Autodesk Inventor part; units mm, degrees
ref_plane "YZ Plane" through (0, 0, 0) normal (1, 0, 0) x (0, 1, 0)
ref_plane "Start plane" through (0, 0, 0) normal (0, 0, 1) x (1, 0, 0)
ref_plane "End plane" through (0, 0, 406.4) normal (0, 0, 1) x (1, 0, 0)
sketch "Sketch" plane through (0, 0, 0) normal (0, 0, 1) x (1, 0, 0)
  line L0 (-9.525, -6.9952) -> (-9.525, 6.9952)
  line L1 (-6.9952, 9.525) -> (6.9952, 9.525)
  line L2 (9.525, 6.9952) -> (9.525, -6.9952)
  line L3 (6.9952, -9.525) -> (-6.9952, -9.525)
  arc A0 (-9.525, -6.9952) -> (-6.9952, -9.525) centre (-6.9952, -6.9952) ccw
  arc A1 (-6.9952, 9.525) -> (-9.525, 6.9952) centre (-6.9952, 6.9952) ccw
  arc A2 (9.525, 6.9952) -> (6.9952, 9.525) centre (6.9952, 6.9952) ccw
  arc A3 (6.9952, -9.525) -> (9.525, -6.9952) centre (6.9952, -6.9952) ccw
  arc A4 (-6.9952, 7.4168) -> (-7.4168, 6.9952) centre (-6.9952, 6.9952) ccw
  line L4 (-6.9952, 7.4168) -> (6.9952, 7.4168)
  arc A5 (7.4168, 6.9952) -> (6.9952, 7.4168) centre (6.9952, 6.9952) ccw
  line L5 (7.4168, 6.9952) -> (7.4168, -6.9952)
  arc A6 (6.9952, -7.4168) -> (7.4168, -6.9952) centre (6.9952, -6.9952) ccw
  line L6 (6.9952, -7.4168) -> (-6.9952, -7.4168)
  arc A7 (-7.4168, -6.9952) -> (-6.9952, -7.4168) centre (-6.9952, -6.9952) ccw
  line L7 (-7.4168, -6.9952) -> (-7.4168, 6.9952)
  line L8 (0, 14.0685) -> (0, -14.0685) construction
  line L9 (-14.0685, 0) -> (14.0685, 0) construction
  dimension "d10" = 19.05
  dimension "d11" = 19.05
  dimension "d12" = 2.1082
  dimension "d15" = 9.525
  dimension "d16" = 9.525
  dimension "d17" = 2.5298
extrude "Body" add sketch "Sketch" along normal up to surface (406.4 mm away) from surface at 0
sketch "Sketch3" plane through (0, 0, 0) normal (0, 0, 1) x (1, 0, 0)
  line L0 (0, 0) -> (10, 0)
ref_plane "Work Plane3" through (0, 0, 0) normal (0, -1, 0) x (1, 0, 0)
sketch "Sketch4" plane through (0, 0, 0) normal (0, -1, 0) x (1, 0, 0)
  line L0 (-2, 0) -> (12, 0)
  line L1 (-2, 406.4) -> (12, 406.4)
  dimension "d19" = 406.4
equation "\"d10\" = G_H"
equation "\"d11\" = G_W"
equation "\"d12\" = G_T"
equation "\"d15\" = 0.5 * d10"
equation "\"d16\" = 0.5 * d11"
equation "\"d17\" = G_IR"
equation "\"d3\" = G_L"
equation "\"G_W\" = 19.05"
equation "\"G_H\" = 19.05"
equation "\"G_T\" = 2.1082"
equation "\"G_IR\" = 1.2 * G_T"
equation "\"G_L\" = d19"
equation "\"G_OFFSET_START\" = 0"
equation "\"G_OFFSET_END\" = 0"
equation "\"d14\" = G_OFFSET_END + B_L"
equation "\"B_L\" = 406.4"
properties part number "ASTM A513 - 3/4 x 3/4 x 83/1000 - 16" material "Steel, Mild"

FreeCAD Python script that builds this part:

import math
import FreeCAD as App
import Part
import Sketcher
from FreeCAD import Vector
Q = App.Units.Quantity

doc = App.newDocument("Part")
body = doc.addObject("PartDesign::Body", "Body")

# Sketch on XY plane
sketch1 = body.newObject("Sketcher::SketchObject", "Sketch")
sketch1.AttachmentSupport = (doc.getObject("XY_Plane"), [""])
sketch1.MapMode = "FlatFace"
sketch1.addGeometry([
    Part.LineSegment(Vector(-9.525, 6.9952, 0), Vector(-9.525, -6.9952, 0)),  # 0
    Part.ArcOfCircle(Part.Circle(Vector(-6.9952, -6.9952, 0), Vector(0, 0, 1), 2.5298), math.radians(180), math.radians(270)),  # 1
    Part.LineSegment(Vector(-6.9952, -9.525, 0), Vector(6.9952, -9.525, 0)),  # 2
    Part.ArcOfCircle(Part.Circle(Vector(6.9952, -6.9952, 0), Vector(0, 0, 1), 2.5298), math.radians(-90), math.radians(0)),  # 3
    Part.LineSegment(Vector(9.525, -6.9952, 0), Vector(9.525, 6.9952, 0)),  # 4
    Part.ArcOfCircle(Part.Circle(Vector(6.9952, 6.9952, 0), Vector(0, 0, 1), 2.5298), math.radians(0), math.radians(90)),  # 5
    Part.LineSegment(Vector(6.9952, 9.525, 0), Vector(-6.9952, 9.525, 0)),  # 6
    Part.ArcOfCircle(Part.Circle(Vector(-6.9952, 6.9952, 0), Vector(0, 0, 1), 2.5298), math.radians(90), math.radians(180)),  # 7
    Part.ArcOfCircle(Part.Circle(Vector(-6.9952, 6.9952, 0), Vector(0, 0, 1), 0.4216), math.radians(90), math.radians(180)),  # 8
    Part.LineSegment(Vector(-6.9952, 7.4168, 0), Vector(6.9952, 7.4168, 0)),  # 9
    Part.ArcOfCircle(Part.Circle(Vector(6.9952, 6.9952, 0), Vector(0, 0, 1), 0.4216), math.radians(0), math.radians(90)),  # 10
    Part.LineSegment(Vector(7.4168, 6.9952, 0), Vector(7.4168, -6.9952, 0)),  # 11
    Part.ArcOfCircle(Part.Circle(Vector(6.9952, -6.9952, 0), Vector(0, 0, 1), 0.4216), math.radians(-90), math.radians(0)),  # 12
    Part.LineSegment(Vector(6.9952, -7.4168, 0), Vector(-6.9952, -7.4168, 0)),  # 13
    Part.ArcOfCircle(Part.Circle(Vector(-6.9952, -6.9952, 0), Vector(0, 0, 1), 0.4216), math.radians(180), math.radians(270)),  # 14
    Part.LineSegment(Vector(-7.4168, -6.9952, 0), Vector(-7.4168, 6.9952, 0)),  # 15
], False)
sketch1.addConstraint([
    Sketcher.Constraint("Tangent", 0, 2, 1, 1),
    Sketcher.Constraint("Tangent", 1, 2, 2, 1),
    Sketcher.Constraint("Tangent", 2, 2, 3, 1),
    Sketcher.Constraint("Tangent", 3, 2, 4, 1),
    Sketcher.Constraint("Tangent", 4, 2, 5, 1),
    Sketcher.Constraint("Tangent", 5, 2, 6, 1),
    Sketcher.Constraint("Tangent", 6, 2, 7, 1),
    Sketcher.Constraint("Tangent", 7, 2, 0, 1),
    Sketcher.Constraint("Tangent", 8, 1, 9, 1),
    Sketcher.Constraint("Tangent", 9, 2, 10, 2),
    Sketcher.Constraint("Tangent", 10, 1, 11, 1),
    Sketcher.Constraint("Tangent", 11, 2, 12, 2),
    Sketcher.Constraint("Tangent", 12, 1, 13, 1),
    Sketcher.Constraint("Tangent", 13, 2, 14, 2),
    Sketcher.Constraint("Tangent", 14, 1, 15, 1),
    Sketcher.Constraint("Tangent", 15, 2, 8, 2),
    Sketcher.Constraint("Vertical", 0),
    Sketcher.Constraint("Horizontal", 2),
    Sketcher.Constraint("Vertical", 4),
    Sketcher.Constraint("Horizontal", 6),
    Sketcher.Constraint("Horizontal", 9),
    Sketcher.Constraint("Vertical", 11),
    Sketcher.Constraint("Horizontal", 13),
    Sketcher.Constraint("Vertical", 15),
    Sketcher.Constraint("Coincident", 8, 3, 7, 3),
    Sketcher.Constraint("Coincident", 10, 3, 5, 3),
    Sketcher.Constraint("Coincident", 12, 3, 3, 3),
    Sketcher.Constraint("Equal", 1, 3),
    Sketcher.Constraint("Equal", 3, 5),
    Sketcher.Constraint("Equal", 5, 7),
    Sketcher.Constraint("Equal", 12, 14),
    Sketcher.Constraint("Symmetric", 1, 3, 5, 3, -1, 1),
    Sketcher.Constraint("Equal", 13, 0),
    Sketcher.Constraint("Radius", 1, Q("0.0996 in")),
    Sketcher.Constraint("DistanceX", 0, 2, -1, 1, Q("0.375 in")),
    Sketcher.Constraint("DistanceY", 8, 1, 6, 2, Q("0.083 in")),
])
pad1 = body.newObject("PartDesign::Pad", "Pad")
pad1.Profile = sketch1
pad1.Length = Q("16 in")

doc.recompute()
